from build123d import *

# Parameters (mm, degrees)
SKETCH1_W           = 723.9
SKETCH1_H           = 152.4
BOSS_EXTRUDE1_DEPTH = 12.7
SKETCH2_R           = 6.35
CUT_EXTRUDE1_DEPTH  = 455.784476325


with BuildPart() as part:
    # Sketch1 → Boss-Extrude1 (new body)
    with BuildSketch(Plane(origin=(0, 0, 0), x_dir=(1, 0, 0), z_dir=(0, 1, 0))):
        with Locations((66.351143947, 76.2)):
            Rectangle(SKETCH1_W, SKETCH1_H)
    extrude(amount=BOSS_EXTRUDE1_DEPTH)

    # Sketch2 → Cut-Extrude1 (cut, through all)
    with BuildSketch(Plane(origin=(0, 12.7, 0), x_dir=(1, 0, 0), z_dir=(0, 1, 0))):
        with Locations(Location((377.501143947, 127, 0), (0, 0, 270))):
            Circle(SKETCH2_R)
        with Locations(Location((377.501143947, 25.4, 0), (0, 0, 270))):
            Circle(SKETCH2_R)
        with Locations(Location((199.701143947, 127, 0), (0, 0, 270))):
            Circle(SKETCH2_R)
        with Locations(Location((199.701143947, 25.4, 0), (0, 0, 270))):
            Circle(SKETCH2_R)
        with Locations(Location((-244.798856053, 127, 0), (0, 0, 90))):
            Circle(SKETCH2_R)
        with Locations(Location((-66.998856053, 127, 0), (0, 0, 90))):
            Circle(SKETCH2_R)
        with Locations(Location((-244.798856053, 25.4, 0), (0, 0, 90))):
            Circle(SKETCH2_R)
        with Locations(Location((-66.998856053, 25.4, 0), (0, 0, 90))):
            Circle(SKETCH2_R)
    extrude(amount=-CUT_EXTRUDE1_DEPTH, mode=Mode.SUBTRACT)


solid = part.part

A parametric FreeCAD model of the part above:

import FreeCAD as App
import Part
import Sketcher

V = App.Vector
Q = App.Units.Quantity


def add_polygon(sketch, points):
    """Adds a closed chain of lines whose ends are joined by coincident constraints."""
    first, n = sketch.GeometryCount, len(points)
    for a, b in zip(points, points[1:] + points[:1]):
        sketch.addGeometry(Part.LineSegment(App.Vector(*a, 0), App.Vector(*b, 0)), False)
    for i in range(n):
        sketch.addConstraint(Sketcher.Constraint("Coincident", first + i, 2, first + (i + 1) % n, 1))

doc = App.newDocument("Part")
body = doc.addObject("PartDesign::Body", "Body")

sketch1 = doc.addObject("Sketcher::SketchObject", "Sketch")
body.addObject(sketch1)
sketch1.AttachmentSupport = (doc.XZ_Plane, [""])
sketch1.MapMode = "FlatFace"
add_polygon(sketch1, [(-296, -152), (-296, 0), (428, 0), (428, -152)])
sketch1.addConstraint([
    Sketcher.Constraint("Vertical", 0),
    Sketcher.Constraint("Horizontal", 1),
    Sketcher.Constraint("Vertical", 2),
    Sketcher.Constraint("Horizontal", 3),
    Sketcher.Constraint("PointOnObject", 0, 2, -1),
    Sketcher.Constraint("DistanceY", 0, 1, 0, 2, Q("6 in")),
    Sketcher.Constraint("DistanceX", 1, 1, 1, 2, Q("28.5 in")),
    Sketcher.Constraint("DistanceX", 0, 2, -1, 1, Q("295.598856 mm")),
])
pad1 = doc.addObject("PartDesign::Pad", "Pad")
body.addObject(pad1)
pad1.Profile = sketch1
pad1.Length = Q("0.5 in")
pad1.Reversed = True

sketch2 = doc.addObject("Sketcher::SketchObject", "Sketch001")
body.addObject(sketch2)
sketch2.AttachmentSupport = (doc.XZ_Plane, [""])
sketch2.MapMode = "FlatFace"
sketch2.AttachmentOffset = App.Placement(V(0, 0, -0.5 * 25.4), App.Rotation())
sketch2.addGeometry([
    Part.Circle(V(378, -127, 0), V(0, 0, 1), 6),
    Part.Circle(V(378, -25, 0), V(0, 0, 1), 6),
    Part.Circle(V(200, -127, 0), V(0, 0, 1), 6),
    Part.Circle(V(200, -25, 0), V(0, 0, 1), 6),
    Part.Circle(V(-245, -127, 0), V(0, 0, 1), 6),
    Part.Circle(V(-67, -127, 0), V(0, 0, 1), 6),
    Part.Circle(V(-245, -25, 0), V(0, 0, 1), 6),
    Part.Circle(V(-67, -25, 0), V(0, 0, 1), 6),
], False)
sketch2.addConstraint([
    Sketcher.Constraint("Equal", 0, 1),
    Sketcher.Constraint("Equal", 1, 2),
    Sketcher.Constraint("Equal", 2, 3),
    Sketcher.Constraint("Equal", 3, 4),
    Sketcher.Constraint("Equal", 4, 5),
    Sketcher.Constraint("Equal", 5, 6),
    Sketcher.Constraint("Equal", 6, 7),
    Sketcher.Constraint("Horizontal", 0, 3, 2, 3),
    Sketcher.Constraint("Horizontal", 1, 3, 3, 3),
    Sketcher.Constraint("Horizontal", 2, 3, 4, 3),
    Sketcher.Constraint("Horizontal", 4, 3, 5, 3),
    Sketcher.Constraint("Horizontal", 3, 3, 6, 3),
    Sketcher.Constraint("Horizontal", 6, 3, 7, 3),
    Sketcher.Constraint("Vertical", 0, 3, 1, 3),
    Sketcher.Constraint("Vertical", 2, 3, 3, 3),
    Sketcher.Constraint("Vertical", 4, 3, 6, 3),
    Sketcher.Constraint("Vertical", 5, 3, 7, 3),
    Sketcher.Constraint("Diameter", 0, Q("0.5 in")),
    Sketcher.Constraint("DistanceY", 0, 3, -1, 1, Q("5 in")),
    Sketcher.Constraint("DistanceY", 1, 3, -1, 1, Q("1 in")),
    Sketcher.Constraint("DistanceX", 2, 3, 0, 3, Q("7 in")),
    Sketcher.Constraint("DistanceX", 4, 3, 5, 3, Q("7 in")),
    Sketcher.Constraint("DistanceX", 4, 3, 2, 3, Q("17.5 in")),
    Sketcher.Constraint("DistanceX", -1, 1, 0, 3, Q("377.501144 mm")),
])
pocket1 = doc.addObject("PartDesign::Pocket", "Pocket")
body.addObject(pocket1)
pocket1.Profile = sketch2
pocket1.Type = "ThroughAll"
pocket1.Reversed = True

doc.recompute()
